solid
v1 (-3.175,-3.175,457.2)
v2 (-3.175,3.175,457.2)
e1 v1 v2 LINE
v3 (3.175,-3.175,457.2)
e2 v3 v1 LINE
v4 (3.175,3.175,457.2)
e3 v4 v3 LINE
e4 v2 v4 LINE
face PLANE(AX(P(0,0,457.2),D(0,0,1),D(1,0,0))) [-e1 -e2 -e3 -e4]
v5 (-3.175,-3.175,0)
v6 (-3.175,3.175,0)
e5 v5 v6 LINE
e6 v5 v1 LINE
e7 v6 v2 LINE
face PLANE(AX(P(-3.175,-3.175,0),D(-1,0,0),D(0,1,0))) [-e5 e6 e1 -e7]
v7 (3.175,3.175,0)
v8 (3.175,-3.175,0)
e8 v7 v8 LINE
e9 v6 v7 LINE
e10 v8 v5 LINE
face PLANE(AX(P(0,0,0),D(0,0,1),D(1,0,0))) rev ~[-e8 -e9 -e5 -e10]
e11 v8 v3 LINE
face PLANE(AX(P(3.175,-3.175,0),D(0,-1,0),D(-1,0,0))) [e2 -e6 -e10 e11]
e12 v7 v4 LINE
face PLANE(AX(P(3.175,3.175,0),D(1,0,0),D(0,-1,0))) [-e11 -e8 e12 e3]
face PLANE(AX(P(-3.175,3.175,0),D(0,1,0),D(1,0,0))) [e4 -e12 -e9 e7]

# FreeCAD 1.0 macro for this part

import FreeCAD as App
import Part
import Sketcher
from FreeCAD import Vector
Q = App.Units.Quantity


def add_polygon(sketch, points):
    """Adds a closed chain of lines whose ends are joined by coincident constraints."""
    first, n = sketch.GeometryCount, len(points)
    for a, b in zip(points, points[1:] + points[:1]):
        sketch.addGeometry(Part.LineSegment(App.Vector(*a, 0), App.Vector(*b, 0)), False)
    for i in range(n):
        sketch.addConstraint(Sketcher.Constraint("Coincident", first + i, 2, first + (i + 1) % n, 1))

doc = App.newDocument("Part")
params = doc.addObject("Spreadsheet::Sheet", "Params")
for row, (alias, value) in enumerate([
    ("sketch1_width", "0.25 in"),
    ("pad1_length", "18 in"),
], start=1):
    params.set(f"A{row}", alias)
    params.set(f"B{row}", "=" + value)
    params.setAlias(f"B{row}", alias)

body = doc.addObject("PartDesign::Body", "Body")

# Sketch on XY plane
sketch1 = body.newObject("Sketcher::SketchObject", "Sketch")
sketch1.AttachmentSupport = (doc.getObject("XY_Plane"), [""])
sketch1.MapMode = "FlatFace"
add_polygon(sketch1, [(3.175, 3.175), (-3.175, 3.175), (-3.175, -3.175), (3.175, -3.175)])  # lines 0-3
sketch1.addConstraint(Sketcher.Constraint("Horizontal", 0))
sketch1.addConstraint(Sketcher.Constraint("Vertical", 1))
sketch1.addConstraint(Sketcher.Constraint("Horizontal", 2))
sketch1.addConstraint(Sketcher.Constraint("Vertical", 3))
sketch1.addConstraint(Sketcher.Constraint("Symmetric", 0, 2, 2, 2, -1, 1))
sketch1.addConstraint(Sketcher.Constraint("Equal", 2, 1))
sketch1.addConstraint(Sketcher.Constraint("DistanceX", 0, 2, 0, 1, Q("0.25 in")))
sketch1.setExpression("Constraints[10]", "Params.sketch1_width")
pad1 = body.newObject("PartDesign::Pad", "Pad")
pad1.Profile = sketch1
pad1.setExpression("Length", "Params.pad1_length")

doc.recompute()
